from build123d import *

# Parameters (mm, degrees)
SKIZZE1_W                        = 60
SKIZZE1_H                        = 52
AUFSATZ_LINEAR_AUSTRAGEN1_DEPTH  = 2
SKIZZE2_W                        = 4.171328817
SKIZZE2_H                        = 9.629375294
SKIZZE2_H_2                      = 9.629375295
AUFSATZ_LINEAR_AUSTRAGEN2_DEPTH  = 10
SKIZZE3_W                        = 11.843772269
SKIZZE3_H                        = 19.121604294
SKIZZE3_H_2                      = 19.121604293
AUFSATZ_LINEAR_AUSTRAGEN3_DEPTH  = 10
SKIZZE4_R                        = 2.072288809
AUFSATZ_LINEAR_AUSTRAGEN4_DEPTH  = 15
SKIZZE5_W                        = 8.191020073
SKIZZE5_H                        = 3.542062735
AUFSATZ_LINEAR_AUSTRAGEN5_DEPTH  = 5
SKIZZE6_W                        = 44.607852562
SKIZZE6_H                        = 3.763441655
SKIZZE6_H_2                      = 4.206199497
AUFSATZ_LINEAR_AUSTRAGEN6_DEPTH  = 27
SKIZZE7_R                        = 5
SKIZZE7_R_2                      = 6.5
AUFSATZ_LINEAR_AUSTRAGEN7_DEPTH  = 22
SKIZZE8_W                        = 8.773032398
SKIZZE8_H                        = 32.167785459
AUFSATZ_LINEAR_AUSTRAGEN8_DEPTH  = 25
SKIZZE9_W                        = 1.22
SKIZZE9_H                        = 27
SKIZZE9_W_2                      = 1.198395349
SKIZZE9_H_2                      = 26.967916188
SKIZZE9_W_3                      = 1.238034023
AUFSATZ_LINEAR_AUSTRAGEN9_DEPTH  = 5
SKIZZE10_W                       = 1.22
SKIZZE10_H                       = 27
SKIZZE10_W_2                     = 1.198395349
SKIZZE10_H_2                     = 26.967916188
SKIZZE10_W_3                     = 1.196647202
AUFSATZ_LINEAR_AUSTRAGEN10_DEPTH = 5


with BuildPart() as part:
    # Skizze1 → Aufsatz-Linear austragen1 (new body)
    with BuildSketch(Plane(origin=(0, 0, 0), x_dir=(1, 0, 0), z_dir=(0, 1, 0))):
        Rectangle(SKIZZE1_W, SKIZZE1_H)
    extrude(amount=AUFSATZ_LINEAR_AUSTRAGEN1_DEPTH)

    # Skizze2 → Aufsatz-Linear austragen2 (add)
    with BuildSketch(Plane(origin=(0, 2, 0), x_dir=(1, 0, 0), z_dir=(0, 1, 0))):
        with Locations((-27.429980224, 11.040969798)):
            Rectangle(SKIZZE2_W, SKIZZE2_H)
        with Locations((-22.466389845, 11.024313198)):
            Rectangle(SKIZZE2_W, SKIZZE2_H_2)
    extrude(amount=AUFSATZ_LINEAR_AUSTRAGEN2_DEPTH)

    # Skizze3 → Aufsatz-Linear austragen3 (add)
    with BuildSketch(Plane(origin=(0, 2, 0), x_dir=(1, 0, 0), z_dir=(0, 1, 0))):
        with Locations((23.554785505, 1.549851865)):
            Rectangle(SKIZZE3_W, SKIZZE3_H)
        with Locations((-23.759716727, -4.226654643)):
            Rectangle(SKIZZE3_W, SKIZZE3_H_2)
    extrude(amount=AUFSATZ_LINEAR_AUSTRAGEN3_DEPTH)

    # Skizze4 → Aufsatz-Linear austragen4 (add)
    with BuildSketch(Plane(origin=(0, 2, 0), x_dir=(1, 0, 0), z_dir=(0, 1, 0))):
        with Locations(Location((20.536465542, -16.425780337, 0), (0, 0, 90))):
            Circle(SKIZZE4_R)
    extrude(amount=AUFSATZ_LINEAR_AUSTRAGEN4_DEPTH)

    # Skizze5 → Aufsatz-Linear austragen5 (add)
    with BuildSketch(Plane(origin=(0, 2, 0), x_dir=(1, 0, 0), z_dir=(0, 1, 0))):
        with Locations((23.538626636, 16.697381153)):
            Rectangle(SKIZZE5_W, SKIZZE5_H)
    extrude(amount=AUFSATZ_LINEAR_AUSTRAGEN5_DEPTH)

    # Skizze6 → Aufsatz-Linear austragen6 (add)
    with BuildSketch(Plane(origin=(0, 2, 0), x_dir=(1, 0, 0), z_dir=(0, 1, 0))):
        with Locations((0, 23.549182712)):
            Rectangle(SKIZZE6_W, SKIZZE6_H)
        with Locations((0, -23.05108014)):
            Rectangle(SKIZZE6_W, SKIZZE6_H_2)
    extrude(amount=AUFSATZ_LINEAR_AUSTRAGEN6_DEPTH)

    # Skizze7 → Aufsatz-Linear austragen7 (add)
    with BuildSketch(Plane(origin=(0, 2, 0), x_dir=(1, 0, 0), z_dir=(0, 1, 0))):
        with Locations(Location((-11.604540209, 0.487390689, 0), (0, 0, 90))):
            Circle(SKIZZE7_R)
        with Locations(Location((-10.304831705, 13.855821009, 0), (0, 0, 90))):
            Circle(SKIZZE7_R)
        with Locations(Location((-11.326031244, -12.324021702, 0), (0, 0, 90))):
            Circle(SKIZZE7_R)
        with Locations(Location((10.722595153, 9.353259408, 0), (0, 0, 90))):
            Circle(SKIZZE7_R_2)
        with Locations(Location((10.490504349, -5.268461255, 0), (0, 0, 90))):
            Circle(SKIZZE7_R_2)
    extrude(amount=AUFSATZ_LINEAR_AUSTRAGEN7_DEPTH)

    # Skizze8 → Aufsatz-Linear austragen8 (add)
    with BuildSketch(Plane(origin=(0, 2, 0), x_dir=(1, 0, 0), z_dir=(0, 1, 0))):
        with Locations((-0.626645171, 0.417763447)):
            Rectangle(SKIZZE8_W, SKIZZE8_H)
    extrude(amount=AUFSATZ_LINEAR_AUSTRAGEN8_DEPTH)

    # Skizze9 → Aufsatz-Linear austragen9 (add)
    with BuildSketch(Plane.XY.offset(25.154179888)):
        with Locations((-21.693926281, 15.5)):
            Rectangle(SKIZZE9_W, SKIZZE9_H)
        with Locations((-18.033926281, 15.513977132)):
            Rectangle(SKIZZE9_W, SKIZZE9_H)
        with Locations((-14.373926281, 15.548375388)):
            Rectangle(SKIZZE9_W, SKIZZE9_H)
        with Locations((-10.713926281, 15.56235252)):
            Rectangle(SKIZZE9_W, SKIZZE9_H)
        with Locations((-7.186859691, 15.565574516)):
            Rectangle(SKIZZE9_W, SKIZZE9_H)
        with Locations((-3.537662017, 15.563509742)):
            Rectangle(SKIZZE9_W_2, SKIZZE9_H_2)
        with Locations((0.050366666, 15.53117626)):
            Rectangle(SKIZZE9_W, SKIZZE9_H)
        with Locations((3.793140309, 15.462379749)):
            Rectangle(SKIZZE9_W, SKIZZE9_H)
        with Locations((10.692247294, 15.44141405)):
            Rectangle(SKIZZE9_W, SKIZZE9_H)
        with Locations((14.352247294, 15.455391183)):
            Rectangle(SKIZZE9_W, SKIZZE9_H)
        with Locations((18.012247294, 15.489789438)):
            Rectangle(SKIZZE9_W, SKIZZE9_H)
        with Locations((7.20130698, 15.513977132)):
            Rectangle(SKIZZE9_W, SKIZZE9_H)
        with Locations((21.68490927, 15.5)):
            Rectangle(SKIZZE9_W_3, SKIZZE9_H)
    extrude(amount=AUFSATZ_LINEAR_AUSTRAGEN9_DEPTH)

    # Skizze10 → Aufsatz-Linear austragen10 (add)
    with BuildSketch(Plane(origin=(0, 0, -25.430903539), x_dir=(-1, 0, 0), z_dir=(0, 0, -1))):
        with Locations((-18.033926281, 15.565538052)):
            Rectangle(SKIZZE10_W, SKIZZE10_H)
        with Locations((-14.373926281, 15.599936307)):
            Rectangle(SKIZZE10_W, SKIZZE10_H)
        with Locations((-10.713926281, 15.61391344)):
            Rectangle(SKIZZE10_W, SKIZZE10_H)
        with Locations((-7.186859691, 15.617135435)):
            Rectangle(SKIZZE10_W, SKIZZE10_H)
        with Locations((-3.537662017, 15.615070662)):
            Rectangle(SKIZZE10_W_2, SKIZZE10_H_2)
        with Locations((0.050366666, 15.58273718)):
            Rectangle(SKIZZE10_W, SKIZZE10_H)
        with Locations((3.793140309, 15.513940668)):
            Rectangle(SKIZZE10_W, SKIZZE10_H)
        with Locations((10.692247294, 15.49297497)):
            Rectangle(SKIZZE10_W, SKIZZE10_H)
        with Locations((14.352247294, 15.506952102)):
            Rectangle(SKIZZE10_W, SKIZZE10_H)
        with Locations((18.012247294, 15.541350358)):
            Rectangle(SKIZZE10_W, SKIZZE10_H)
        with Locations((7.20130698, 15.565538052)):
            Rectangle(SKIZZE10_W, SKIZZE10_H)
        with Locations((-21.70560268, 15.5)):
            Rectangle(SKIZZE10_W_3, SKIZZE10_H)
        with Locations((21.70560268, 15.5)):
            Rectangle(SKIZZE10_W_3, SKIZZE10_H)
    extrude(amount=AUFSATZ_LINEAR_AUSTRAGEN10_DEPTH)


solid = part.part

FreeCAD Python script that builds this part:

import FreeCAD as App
import Part
import Sketcher
from FreeCAD import Vector


def add_polygon(sketch, points):
    """Adds a closed chain of lines whose ends are joined by coincident constraints."""
    first, n = sketch.GeometryCount, len(points)
    for a, b in zip(points, points[1:] + points[:1]):
        sketch.addGeometry(Part.LineSegment(App.Vector(*a, 0), App.Vector(*b, 0)), False)
    for i in range(n):
        sketch.addConstraint(Sketcher.Constraint("Coincident", first + i, 2, first + (i + 1) % n, 1))

doc = App.newDocument("Part")
params = doc.addObject("Spreadsheet::Sheet", "Params")
for row, (alias, value) in enumerate([
    ("sketch1_width", "60 mm"),
    ("sketch1_height", "52 mm"),
    ("pad1_length", "2 mm"),
    ("pad2_length", "10 mm"),
    ("pad3_length", "10 mm"),
    ("pad4_length", "15 mm"),
    ("pad5_length", "5 mm"),
    ("pad6_length", "27 mm"),
    ("sketch7_diameter", "10 mm"),
    ("sketch7_diameter2", "13 mm"),
    ("pad7_length", "22 mm"),
    ("pad8_length", "25 mm"),
    ("sketch9_height", "27 mm"),
    ("sketch9_width", "1.22 mm"),
    ("pad9_length", "5 mm"),
    ("sketch10_height", "27 mm"),
    ("sketch10_width", "1.22 mm"),
    ("pad10_length", "5 mm"),
], start=1):
    params.set(f"A{row}", alias)
    params.set(f"B{row}", "=" + value)
    params.setAlias(f"B{row}", alias)

body = doc.addObject("PartDesign::Body", "Body")

# Sketch on XZ plane
sketch1 = body.newObject("Sketcher::SketchObject", "Sketch")
sketch1.AttachmentSupport = (doc.getObject("XZ_Plane"), [""])
sketch1.MapMode = "FlatFace"
add_polygon(sketch1, [(-30, -26), (-30, 26), (30, 26), (30, -26)])  # lines 0-3
sketch1.addConstraint([
    Sketcher.Constraint("Vertical", 0),
    Sketcher.Constraint("Horizontal", 1),
    Sketcher.Constraint("Vertical", 2),
    Sketcher.Constraint("Horizontal", 3),
    Sketcher.Constraint("Symmetric", 0, 2, 2, 2, -1, 1),
    Sketcher.Constraint("DistanceX", 1, 1, 1, 2, 60.0),
    Sketcher.Constraint("DistanceY", 0, 1, 0, 2, 52.0),
])
sketch1.setExpression("Constraints[9]", "Params.sketch1_width")
sketch1.setExpression("Constraints[10]", "Params.sketch1_height")
pad1 = body.newObject("PartDesign::Pad", "Pad")
pad1.Profile = sketch1
pad1.setExpression("Length", "Params.pad1_length")
pad1.Reversed = True

# Sketch on XZ plane
sketch2 = body.newObject("Sketcher::SketchObject", "Sketch001")
sketch2.AttachmentSupport = (doc.getObject("XZ_Plane"), [""])
sketch2.MapMode = "FlatFace"
sketch2.AttachmentOffset = App.Placement(Vector(0, 0, -2), App.Rotation())
add_polygon(sketch2, [(-29.5, -15.9), (-29.5, -6.2), (-25.3, -6.2), (-25.3, -15.9)])  # lines 0-3
add_polygon(sketch2, [(-24.6, -15.8), (-24.6, -6.2), (-20.4, -6.2), (-20.4, -15.8)])  # lines 4-7
sketch2.addConstraint([
    Sketcher.Constraint("Vertical", 0),
    Sketcher.Constraint("Horizontal", 1),
    Sketcher.Constraint("Vertical", 2),
    Sketcher.Constraint("Horizontal", 3),
    Sketcher.Constraint("Vertical", 4),
    Sketcher.Constraint("Horizontal", 5),
    Sketcher.Constraint("Vertical", 6),
    Sketcher.Constraint("Horizontal", 7),
    Sketcher.Constraint("Equal", 3, 5),
    Sketcher.Constraint("Equal", 2, 4),
    Sketcher.Constraint("DistanceY", 6, 2, -1, 1, 15.839001),
    Sketcher.Constraint("DistanceX", 1, 1, 1, 2, 4.171329),
    Sketcher.Constraint("DistanceY", 0, 1, 0, 2, 9.629375),
    Sketcher.Constraint("DistanceX", 1, 2, 4, 2, 0.792262),
    Sketcher.Constraint("DistanceY", 2, 2, 4, 2, 9.646032),
    Sketcher.Constraint("DistanceX", 0, 2, -1, 1, 29.515645),
])
pad2 = body.newObject("PartDesign::Pad", "Pad001")
pad2.Profile = sketch2
pad2.setExpression("Length", "Params.pad2_length")
pad2.Reversed = True

# Sketch on XZ plane
sketch3 = body.newObject("Sketcher::SketchObject", "Sketch002")
sketch3.AttachmentSupport = (doc.getObject("XZ_Plane"), [""])
sketch3.MapMode = "FlatFace"
sketch3.AttachmentOffset = App.Placement(Vector(0, 0, -2), App.Rotation())
add_polygon(sketch3, [(18, -11), (18, 8), (29, 8), (29, -11)])  # lines 0-3
add_polygon(sketch3, [(-30, -5), (-30, 14), (-18, 14), (-18, -5)])  # lines 4-7
sketch3.addConstraint([
    Sketcher.Constraint("Vertical", 0),
    Sketcher.Constraint("Horizontal", 1),
    Sketcher.Constraint("Vertical", 2),
    Sketcher.Constraint("Horizontal", 3),
    Sketcher.Constraint("Vertical", 4),
    Sketcher.Constraint("Horizontal", 5),
    Sketcher.Constraint("Vertical", 6),
    Sketcher.Constraint("Horizontal", 7),
    Sketcher.Constraint("Equal", 3, 5),
    Sketcher.Constraint("Equal", 2, 4),
    Sketcher.Constraint("DistanceX", -1, 1, 0, 2, 17.632899),
    Sketcher.Constraint("DistanceX", 1, 1, 1, 2, 11.843772),
    Sketcher.Constraint("DistanceY", 0, 1, 0, 2, 19.121604),
    Sketcher.Constraint("DistanceY", -1, 1, 0, 2, 8.01095),
    Sketcher.Constraint("DistanceX", 5, 2, -1, 1, 17.837831),
    Sketcher.Constraint("DistanceY", 3, 2, 4, 2, 24.898111),
])
pad3 = body.newObject("PartDesign::Pad", "Pad002")
pad3.Profile = sketch3
pad3.setExpression("Length", "Params.pad3_length")
pad3.Reversed = True

# Sketch on XZ plane
sketch4 = body.newObject("Sketcher::SketchObject", "Sketch003")
sketch4.AttachmentSupport = (doc.getObject("XZ_Plane"), [""])
sketch4.MapMode = "FlatFace"
sketch4.AttachmentOffset = App.Placement(Vector(0, 0, -2), App.Rotation())
sketch4.addGeometry(Part.Circle(Vector(20.5, 16.4, 0), Vector(0, 0, 1), 2.1), False)
sketch4.addConstraint([
    Sketcher.Constraint("Diameter", 0, 4.144578),
    Sketcher.Constraint("DistanceY", -1, 1, 0, 3, 16.42578),
    Sketcher.Constraint("DistanceX", -1, 1, 0, 3, 20.536466),
])
pad4 = body.newObject("PartDesign::Pad", "Pad003")
pad4.Profile = sketch4
pad4.setExpression("Length", "Params.pad4_length")
pad4.Reversed = True

# Sketch on XZ plane
sketch5 = body.newObject("Sketcher::SketchObject", "Sketch004")
sketch5.AttachmentSupport = (doc.getObject("XZ_Plane"), [""])
sketch5.MapMode = "FlatFace"
sketch5.AttachmentOffset = App.Placement(Vector(0, 0, -2), App.Rotation())
add_polygon(sketch5, [(19.4, -18.5), (19.4, -14.9), (27.6, -14.9), (27.6, -18.5)])  # lines 0-3
sketch5.addConstraint([
    Sketcher.Constraint("Vertical", 0),
    Sketcher.Constraint("Horizontal", 1),
    Sketcher.Constraint("Vertical", 2),
    Sketcher.Constraint("Horizontal", 3),
    Sketcher.Constraint("DistanceX", 1, 1, 1, 2, 8.19102),
    Sketcher.Constraint("DistanceY", 0, 1, 0, 2, 3.542063),
    Sketcher.Constraint("DistanceY", 0, 2, -1, 1, 14.92635),
    Sketcher.Constraint("DistanceX", -1, 1, 0, 2, 19.443117),
])
pad5 = body.newObject("PartDesign::Pad", "Pad004")
pad5.Profile = sketch5
pad5.setExpression("Length", "Params.pad5_length")
pad5.Reversed = True

# Sketch on XZ plane
sketch6 = body.newObject("Sketcher::SketchObject", "Sketch005")
sketch6.AttachmentSupport = (doc.getObject("XZ_Plane"), [""])
sketch6.MapMode = "FlatFace"
sketch6.AttachmentOffset = App.Placement(Vector(0, 0, -2), App.Rotation())
add_polygon(sketch6, [(-22.3, -25.4), (-22.3, -21.7), (22.3, -21.7), (22.3, -25.4)])  # lines 0-3
add_polygon(sketch6, [(-22.3, 20.9), (-22.3, 25.2), (22.3, 25.2), (22.3, 20.9)])  # lines 4-7
sketch6.addConstraint([
    Sketcher.Constraint("Vertical", 0),
    Sketcher.Constraint("Horizontal", 1),
    Sketcher.Constraint("Vertical", 2),
    Sketcher.Constraint("Horizontal", 3),
    Sketcher.Constraint("Vertical", 4),
    Sketcher.Constraint("Horizontal", 5),
    Sketcher.Constraint("Vertical", 6),
    Sketcher.Constraint("Horizontal", 7),
    Sketcher.Constraint("Vertical", 3, 2, 4, 2),
    Sketcher.Constraint("Vertical", 2, 2, 5, 2),
    Sketcher.Constraint("DistanceY", 4, 1, 4, 2, 4.206199),
    Sketcher.Constraint("DistanceY", 0, 1, 0, 2, 3.763442),
    Sketcher.Constraint("DistanceX", 1, 1, 1, 2, 44.607853),
    Sketcher.Constraint("DistanceY", 0, 2, -1, 1, 21.667462),
    Sketcher.Constraint("DistanceY", -1, 1, 4, 2, 25.15418),
    Sketcher.Constraint("DistanceX", 0, 2, -1, 1, 22.303926),
])
pad6 = body.newObject("PartDesign::Pad", "Pad005")
pad6.Profile = sketch6
pad6.setExpression("Length", "Params.pad6_length")
pad6.Reversed = True

# Sketch on XZ plane
sketch7 = body.newObject("Sketcher::SketchObject", "Sketch006")
sketch7.AttachmentSupport = (doc.getObject("XZ_Plane"), [""])
sketch7.MapMode = "FlatFace"
sketch7.AttachmentOffset = App.Placement(Vector(0, 0, -2), App.Rotation())
sketch7.addGeometry([
    Part.Circle(Vector(-12, 0, 0), Vector(0, 0, 1), 5),  # 0
    Part.Circle(Vector(-10, -14, 0), Vector(0, 0, 1), 5),  # 1
    Part.Circle(Vector(-11, 12, 0), Vector(0, 0, 1), 5),  # 2
    Part.Circle(Vector(11, -9, 0), Vector(0, 0, 1), 6),  # 3
    Part.Circle(Vector(10, 5, 0), Vector(0, 0, 1), 6),  # 4
], False)
sketch7.addConstraint([
    Sketcher.Constraint("Equal", 0, 1),
    Sketcher.Constraint("Equal", 1, 2),
    Sketcher.Constraint("Equal", 3, 4),
    Sketcher.Constraint("Diameter", 0, 10.0),
    Sketcher.Constraint("Diameter", 3, 13.0),
    Sketcher.Constraint("DistanceX", 2, 3, 1, 3, 1.0212),
    Sketcher.Constraint("DistanceX", 0, 3, -1, 1, 11.60454),
    Sketcher.Constraint("DistanceY", 0, 3, -1, 1, 0.487391),
    Sketcher.Constraint("DistanceX", 1, 3, -1, 1, 10.304832),
    Sketcher.Constraint("DistanceY", 1, 3, -1, 1, 13.855821),
    Sketcher.Constraint("DistanceY", -1, 1, 2, 3, 12.324022),
    Sketcher.Constraint("DistanceY", 3, 3, -1, 1, 9.353259),
    Sketcher.Constraint("DistanceY", -1, 1, 4, 3, 5.268461),
    Sketcher.Constraint("DistanceX", 4, 3, 3, 3, 0.232091),
    Sketcher.Constraint("DistanceX", -1, 1, 3, 3, 10.722595),
])
sketch7.setExpression("Constraints[3]", "Params.sketch7_diameter")
sketch7.setExpression("Constraints[4]", "Params.sketch7_diameter2")
pad7 = body.newObject("PartDesign::Pad", "Pad006")
pad7.Profile = sketch7
pad7.setExpression("Length", "Params.pad7_length")
pad7.Reversed = True

# Sketch on XZ plane
sketch8 = body.newObject("Sketcher::SketchObject", "Sketch007")
sketch8.AttachmentSupport = (doc.getObject("XZ_Plane"), [""])
sketch8.MapMode = "FlatFace"
sketch8.AttachmentOffset = App.Placement(Vector(0, 0, -2), App.Rotation())
add_polygon(sketch8, [(-5, -17), (-5, 16), (4, 16), (4, -17)])  # lines 0-3
sketch8.addConstraint([
    Sketcher.Constraint("Vertical", 0),
    Sketcher.Constraint("Horizontal", 1),
    Sketcher.Constraint("Vertical", 2),
    Sketcher.Constraint("Horizontal", 3),
    Sketcher.Constraint("DistanceX", 1, 1, 1, 2, 8.773032),
    Sketcher.Constraint("DistanceY", 0, 1, 0, 2, 32.167785),
    Sketcher.Constraint("DistanceX", 0, 2, -1, 1, 5.013161),
    Sketcher.Constraint("DistanceY", -1, 1, 0, 2, 15.666129),
])
pad8 = body.newObject("PartDesign::Pad", "Pad007")
pad8.Profile = sketch8
pad8.setExpression("Length", "Params.pad8_length")
pad8.Reversed = True

# Sketch on XY plane
sketch9 = body.newObject("Sketcher::SketchObject", "Sketch008")
sketch9.AttachmentSupport = (doc.getObject("XY_Plane"), [""])
sketch9.MapMode = "FlatFace"
sketch9.AttachmentOffset = App.Placement(Vector(0, 0, 25.15418), App.Rotation())
add_polygon(sketch9, [(-22.3, 29), (-22.3, 2), (-21.1, 2), (-21.1, 29)])  # lines 0-3
add_polygon(sketch9, [(-18.6, 29), (-18.6, 2), (-17.4, 2), (-17.4, 29)])  # lines 4-7
add_polygon(sketch9, [(-15, 29), (-15, 2), (-13.8, 2), (-13.8, 29)])  # lines 8-11
add_polygon(sketch9, [(-11.3, 29.1), (-11.3, 2.1), (-10.1, 2.1), (-10.1, 29.1)])  # lines 12-15
add_polygon(sketch9, [(-7.8, 29.1), (-7.8, 2.1), (-6.6, 2.1), (-6.6, 29.1)])  # lines 16-19
add_polygon(sketch9, [(-4.1, 29), (-4.1, 2.1), (-2.9, 2.1), (-2.9, 29)])  # lines 20-23
add_polygon(sketch9, [(-0.6, 29), (-0.6, 2), (0.7, 2), (0.7, 29)])  # lines 24-27
add_polygon(sketch9, [(3.2, 29), (3.2, 2), (4.4, 2), (4.4, 29)])  # lines 28-31
add_polygon(sketch9, [(10.1, 28.9), (10.1, 1.9), (11.3, 1.9), (11.3, 28.9)])  # lines 32-35
add_polygon(sketch9, [(13.7, 29), (13.7, 2), (15, 2), (15, 29)])  # lines 36-39
add_polygon(sketch9, [(17.4, 29), (17.4, 2), (18.6, 2), (18.6, 29)])  # lines 40-43
add_polygon(sketch9, [(6.6, 29), (6.6, 2), (7.8, 2), (7.8, 29)])  # lines 44-47
add_polygon(sketch9, [(21.1, 29), (21.1, 2), (22.3, 2), (22.3, 29)])  # lines 48-51
sketch9.addConstraint([
    Sketcher.Constraint("Vertical", 0),
    Sketcher.Constraint("Horizontal", 1),
    Sketcher.Constraint("Vertical", 2),
    Sketcher.Constraint("Horizontal", 3),
    Sketcher.Constraint("Vertical", 4),
    Sketcher.Constraint("Horizontal", 5),
    Sketcher.Constraint("Vertical", 6),
    Sketcher.Constraint("Horizontal", 7),
    Sketcher.Constraint("Vertical", 8),
    Sketcher.Constraint("Horizontal", 9),
    Sketcher.Constraint("Vertical", 10),
    Sketcher.Constraint("Horizontal", 11),
    Sketcher.Constraint("Vertical", 12),
    Sketcher.Constraint("Horizontal", 13),
    Sketcher.Constraint("Vertical", 14),
    Sketcher.Constraint("Horizontal", 15),
    Sketcher.Constraint("Vertical", 16),
    Sketcher.Constraint("Horizontal", 17),
    Sketcher.Constraint("Vertical", 18),
    Sketcher.Constraint("Horizontal", 19),
    Sketcher.Constraint("Vertical", 20),
    Sketcher.Constraint("Horizontal", 21),
    Sketcher.Constraint("Vertical", 22),
    Sketcher.Constraint("Horizontal", 23),
    Sketcher.Constraint("Vertical", 24),
    Sketcher.Constraint("Horizontal", 25),
    Sketcher.Constraint("Vertical", 26),
    Sketcher.Constraint("Horizontal", 27),
    Sketcher.Constraint("Vertical", 28),
    Sketcher.Constraint("Horizontal", 29),
    Sketcher.Constraint("Vertical", 30),
    Sketcher.Constraint("Horizontal", 31),
    Sketcher.Constraint("Vertical", 32),
    Sketcher.Constraint("Horizontal", 33),
    Sketcher.Constraint("Vertical", 34),
    Sketcher.Constraint("Horizontal", 35),
    Sketcher.Constraint("Vertical", 36),
    Sketcher.Constraint("Horizontal", 37),
    Sketcher.Constraint("Vertical", 38),
    Sketcher.Constraint("Horizontal", 39),
    Sketcher.Constraint("Vertical", 40),
    Sketcher.Constraint("Horizontal", 41),
    Sketcher.Constraint("Vertical", 42),
    Sketcher.Constraint("Horizontal", 43),
    Sketcher.Constraint("Vertical", 44),
    Sketcher.Constraint("Horizontal", 45),
    Sketcher.Constraint("Vertical", 46),
    Sketcher.Constraint("Horizontal", 47),
    Sketcher.Constraint("Vertical", 48),
    Sketcher.Constraint("Horizontal", 49),
    Sketcher.Constraint("Vertical", 50),
    Sketcher.Constraint("Horizontal", 51),
    Sketcher.Constraint("Symmetric", 0, 2, 49, 2, -2),
    Sketcher.Constraint("Horizontal", 5, 2, 44, 2),
    Sketcher.Constraint("Horizontal", 7, 2, 46, 2),
    Sketcher.Constraint("Horizontal", 3, 2, 50, 2),
    Sketcher.Constraint("Equal", 3, 5),
    Sketcher.Constraint("Equal", 7, 9),
    Sketcher.Constraint("Equal", 11, 13),
    Sketcher.Constraint("Equal", 15, 17),
    Sketcher.Constraint("Equal", 19, 25),
    Sketcher.Constraint("Equal", 27, 29),
    Sketcher.Constraint("Equal", 31, 33),
    Sketcher.Constraint("Equal", 35, 37),
    Sketcher.Constraint("Equal", 39, 41),
    Sketcher.Constraint("Equal", 43, 45),
    Sketcher.Constraint("Equal", 2, 4),
    Sketcher.Constraint("Equal", 6, 8),
    Sketcher.Constraint("Equal", 10, 12),
    Sketcher.Constraint("Equal", 14, 16),
    Sketcher.Constraint("Equal", 18, 24),
    Sketcher.Constraint("Equal", 26, 28),
    Sketcher.Constraint("Equal", 30, 32),
    Sketcher.Constraint("Equal", 34, 36),
    Sketcher.Constraint("Equal", 38, 40),
    Sketcher.Constraint("DistanceY", 0, 2, 0, 1, 27.0),
    Sketcher.Constraint("DistanceY", -1, 1, 0, 2, 2.0),
    Sketcher.Constraint("DistanceX", 1, 1, 1, 2, 1.22),
    Sketcher.Constraint("DistanceX", 1, 2, 8, 2, 6.1),
    Sketcher.Constraint("DistanceX", 5, 2, 12, 2, 6.1),
    Sketcher.Constraint("DistanceX", 33, 2, 40, 2, 6.1),
    Sketcher.Constraint("DistanceX", 1, 2, 4, 2, 2.44),
    Sketcher.Constraint("DistanceX", 17, 2, 20, 2, 2.44),
    Sketcher.Constraint("DistanceX", 20, 2, 28, 2, 7.32),
    Sketcher.Constraint("DistanceX", 33, 2, 36, 2, 2.44),
    Sketcher.Constraint("DistanceY", 5, 2, 8, 2, 0.034398),
    Sketcher.Constraint("DistanceY", 9, 2, 16, 2, 0.017199),
    Sketcher.Constraint("DistanceY", 13, 2, 20, 2, 0.017199),
    Sketcher.Constraint("DistanceY", 24, 2, 17, 2, 0.034398),
    Sketcher.Constraint("DistanceY", 37, 2, 40, 2, 0.034398),
    Sketcher.Constraint("DistanceX", 21, 1, 21, 2, 1.198395),
    Sketcher.Constraint("DistanceX", 49, 1, 49, 2, 1.238034),
    Sketcher.Constraint("DistanceY", 20, 2, 20, 1, 26.967916),
    Sketcher.Constraint("DistanceX", 16, 2, -1, 1, 7.79686),
    Sketcher.Constraint("DistanceY", -1, 1, 20, 2, 2.079552),
    Sketcher.Constraint("DistanceY", -1, 1, 28, 2, 1.96238),
    Sketcher.Constraint("DistanceY", -1, 1, 36, 2, 1.955391),
    Sketcher.Constraint("DistanceY", 13, 2, 16, 2, 0.003222),
    Sketcher.Constraint("DistanceX", 13, 2, 21, 2, 7.165462),
    Sketcher.Constraint("DistanceX", 21, 2, 24, 2, 2.378831),
    Sketcher.Constraint("DistanceX", 25, 2, 32, 2, 9.421881),
    Sketcher.Constraint("DistanceX", 44, 2, 32, 2, 3.49094),
    Sketcher.Constraint("DistanceY", -1, 1, 32, 2, 1.941414),
])
sketch9.setExpression("Constraints[127]", "Params.sketch9_height")
sketch9.setExpression("Constraints[129]", "Params.sketch9_width")
pad9 = body.newObject("PartDesign::Pad", "Pad008")
pad9.Profile = sketch9
pad9.setExpression("Length", "Params.pad9_length")

# Sketch on XY plane
sketch10 = body.newObject("Sketcher::SketchObject", "Sketch009")
sketch10.AttachmentSupport = (doc.getObject("XY_Plane"), [""])
sketch10.MapMode = "FlatFace"
sketch10.AttachmentOffset = App.Placement(Vector(0, 0, -25.430904), App.Rotation())
add_polygon(sketch10, [(18.6, 29.1), (18.6, 2.1), (17.4, 2.1), (17.4, 29.1)])  # lines 0-3
add_polygon(sketch10, [(15, 29.1), (15, 2.1), (13.8, 2.1), (13.8, 29.1)])  # lines 4-7
add_polygon(sketch10, [(11.3, 29.1), (11.3, 2.1), (10.1, 2.1), (10.1, 29.1)])  # lines 8-11
add_polygon(sketch10, [(7.8, 29.1), (7.8, 2.1), (6.6, 2.1), (6.6, 29.1)])  # lines 12-15
add_polygon(sketch10, [(4.1, 29.1), (4.1, 2.1), (2.9, 2.1), (2.9, 29.1)])  # lines 16-19
add_polygon(sketch10, [(0.6, 29.1), (0.6, 2.1), (-0.7, 2.1), (-0.7, 29.1)])  # lines 20-23
add_polygon(sketch10, [(-3.2, 29), (-3.2, 2), (-4.4, 2), (-4.4, 29)])  # lines 24-27
add_polygon(sketch10, [(-10.1, 29), (-10.1, 2), (-11.3, 2), (-11.3, 29)])  # lines 28-31
add_polygon(sketch10, [(-13.7, 29), (-13.7, 2), (-15, 2), (-15, 29)])  # lines 32-35
add_polygon(sketch10, [(-17.4, 29), (-17.4, 2), (-18.6, 2), (-18.6, 29)])  # lines 36-39
add_polygon(sketch10, [(-6.6, 29.1), (-6.6, 2.1), (-7.8, 2.1), (-7.8, 29.1)])  # lines 40-43
add_polygon(sketch10, [(22.3, 29), (22.3, 2), (21.1, 2), (21.1, 29)])  # lines 44-47
add_polygon(sketch10, [(-21.1, 29), (-21.1, 2), (-22.3, 2), (-22.3, 29)])  # lines 48-51
sketch10.addConstraint([
    Sketcher.Constraint("Vertical", 0),
    Sketcher.Constraint("Horizontal", 1),
    Sketcher.Constraint("Vertical", 2),
    Sketcher.Constraint("Horizontal", 3),
    Sketcher.Constraint("Vertical", 4),
    Sketcher.Constraint("Horizontal", 5),
    Sketcher.Constraint("Vertical", 6),
    Sketcher.Constraint("Horizontal", 7),
    Sketcher.Constraint("Vertical", 8),
    Sketcher.Constraint("Horizontal", 9),
    Sketcher.Constraint("Vertical", 10),
    Sketcher.Constraint("Horizontal", 11),
    Sketcher.Constraint("Vertical", 12),
    Sketcher.Constraint("Horizontal", 13),
    Sketcher.Constraint("Vertical", 14),
    Sketcher.Constraint("Horizontal", 15),
    Sketcher.Constraint("Vertical", 16),
    Sketcher.Constraint("Horizontal", 17),
    Sketcher.Constraint("Vertical", 18),
    Sketcher.Constraint("Horizontal", 19),
    Sketcher.Constraint("Vertical", 20),
    Sketcher.Constraint("Horizontal", 21),
    Sketcher.Constraint("Vertical", 22),
    Sketcher.Constraint("Horizontal", 23),
    Sketcher.Constraint("Vertical", 24),
    Sketcher.Constraint("Horizontal", 25),
    Sketcher.Constraint("Vertical", 26),
    Sketcher.Constraint("Horizontal", 27),
    Sketcher.Constraint("Vertical", 28),
    Sketcher.Constraint("Horizontal", 29),
    Sketcher.Constraint("Vertical", 30),
    Sketcher.Constraint("Horizontal", 31),
    Sketcher.Constraint("Vertical", 32),
    Sketcher.Constraint("Horizontal", 33),
    Sketcher.Constraint("Vertical", 34),
    Sketcher.Constraint("Horizontal", 35),
    Sketcher.Constraint("Vertical", 36),
    Sketcher.Constraint("Horizontal", 37),
    Sketcher.Constraint("Vertical", 38),
    Sketcher.Constraint("Horizontal", 39),
    Sketcher.Constraint("Vertical", 40),
    Sketcher.Constraint("Horizontal", 41),
    Sketcher.Constraint("Vertical", 42),
    Sketcher.Constraint("Horizontal", 43),
    Sketcher.Constraint("Vertical", 44),
    Sketcher.Constraint("Horizontal", 45),
    Sketcher.Constraint("Vertical", 46),
    Sketcher.Constraint("Horizontal", 47),
    Sketcher.Constraint("Vertical", 48),
    Sketcher.Constraint("Horizontal", 49),
    Sketcher.Constraint("Vertical", 50),
    Sketcher.Constraint("Horizontal", 51),
    Sketcher.Constraint("Symmetric", 45, 2, 48, 2, -2),
    Sketcher.Constraint("Symmetric", 47, 2, 50, 2, -2),
    Sketcher.Constraint("Horizontal", 1, 2, 40, 2),
    Sketcher.Constraint("Horizontal", 3, 2, 42, 2),
    Sketcher.Constraint("Equal", 3, 5),
    Sketcher.Constraint("Equal", 7, 9),
    Sketcher.Constraint("Equal", 11, 13),
    Sketcher.Constraint("Equal", 15, 21),
    Sketcher.Constraint("Equal", 23, 25),
    Sketcher.Constraint("Equal", 27, 29),
    Sketcher.Constraint("Equal", 31, 33),
    Sketcher.Constraint("Equal", 35, 37),
    Sketcher.Constraint("Equal", 39, 41),
    Sketcher.Constraint("Equal", 2, 4),
    Sketcher.Constraint("Equal", 6, 8),
    Sketcher.Constraint("Equal", 10, 12),
    Sketcher.Constraint("Equal", 14, 20),
    Sketcher.Constraint("Equal", 22, 24),
    Sketcher.Constraint("Equal", 26, 28),
    Sketcher.Constraint("Equal", 30, 32),
    Sketcher.Constraint("Equal", 34, 36),
    Sketcher.Constraint("Equal", 42, 44),
    Sketcher.Constraint("DistanceY", 0, 2, 0, 1, 27.0),
    Sketcher.Constraint("DistanceY", -1, 1, 44, 2, 2.0),
    Sketcher.Constraint("DistanceX", 1, 2, 1, 1, 1.22),
    Sketcher.Constraint("DistanceX", 8, 2, 1, 2, 6.1),
    Sketcher.Constraint("DistanceX", 36, 2, 29, 2, 6.1),
    Sketcher.Constraint("DistanceX", 4, 2, 1, 2, 2.44),
    Sketcher.Constraint("DistanceX", 16, 2, 13, 2, 2.44),
    Sketcher.Constraint("DistanceX", 24, 2, 16, 2, 7.32),
    Sketcher.Constraint("DistanceX", 32, 2, 29, 2, 2.44),
    Sketcher.Constraint("DistanceX", 0, 2, 44, 2, 3.66),
    Sketcher.Constraint("DistanceY", 1, 2, 4, 2, 0.034398),
    Sketcher.Constraint("DistanceY", 5, 2, 12, 2, 0.017199),
    Sketcher.Constraint("DistanceY", 9, 2, 16, 2, 0.017199),
    Sketcher.Constraint("DistanceY", 20, 2, 13, 2, 0.034398),
    Sketcher.Constraint("DistanceY", 33, 2, 36, 2, 0.034398),
    Sketcher.Constraint("DistanceX", 17, 2, 17, 1, 1.198395),
    Sketcher.Constraint("DistanceX", 45, 2, 45, 1, 1.196647),
    Sketcher.Constraint("DistanceY", 16, 2, 16, 1, 26.967916),
    Sketcher.Constraint("DistanceY", -1, 1, 0, 2, 2.065538),
    Sketcher.Constraint("DistanceX", -1, 1, 12, 2, 7.79686),
    Sketcher.Constraint("DistanceY", -1, 1, 18, 2, 29.099029),
    Sketcher.Constraint("DistanceY", -1, 1, 24, 2, 2.013941),
    Sketcher.Constraint("DistanceY", -1, 1, 36, 2, 2.04135),
    Sketcher.Constraint("DistanceX", -1, 1, 45, 2, 21.107279),
    Sketcher.Constraint("DistanceX", 20, 2, 17, 2, 2.378831),
    Sketcher.Constraint("DistanceX", 28, 2, 21, 2, 9.421881),
    Sketcher.Constraint("DistanceX", 28, 2, 40, 2, 3.49094),
    Sketcher.Constraint("DistanceY", -1, 1, 28, 2, 1.992975),
])
sketch10.setExpression("Constraints[126]", "Params.sketch10_height")
sketch10.setExpression("Constraints[128]", "Params.sketch10_width")
pad10 = body.newObject("PartDesign::Pad", "Pad009")
pad10.Profile = sketch10
pad10.setExpression("Length", "Params.pad10_length")
pad10.Reversed = True

doc.recompute()
